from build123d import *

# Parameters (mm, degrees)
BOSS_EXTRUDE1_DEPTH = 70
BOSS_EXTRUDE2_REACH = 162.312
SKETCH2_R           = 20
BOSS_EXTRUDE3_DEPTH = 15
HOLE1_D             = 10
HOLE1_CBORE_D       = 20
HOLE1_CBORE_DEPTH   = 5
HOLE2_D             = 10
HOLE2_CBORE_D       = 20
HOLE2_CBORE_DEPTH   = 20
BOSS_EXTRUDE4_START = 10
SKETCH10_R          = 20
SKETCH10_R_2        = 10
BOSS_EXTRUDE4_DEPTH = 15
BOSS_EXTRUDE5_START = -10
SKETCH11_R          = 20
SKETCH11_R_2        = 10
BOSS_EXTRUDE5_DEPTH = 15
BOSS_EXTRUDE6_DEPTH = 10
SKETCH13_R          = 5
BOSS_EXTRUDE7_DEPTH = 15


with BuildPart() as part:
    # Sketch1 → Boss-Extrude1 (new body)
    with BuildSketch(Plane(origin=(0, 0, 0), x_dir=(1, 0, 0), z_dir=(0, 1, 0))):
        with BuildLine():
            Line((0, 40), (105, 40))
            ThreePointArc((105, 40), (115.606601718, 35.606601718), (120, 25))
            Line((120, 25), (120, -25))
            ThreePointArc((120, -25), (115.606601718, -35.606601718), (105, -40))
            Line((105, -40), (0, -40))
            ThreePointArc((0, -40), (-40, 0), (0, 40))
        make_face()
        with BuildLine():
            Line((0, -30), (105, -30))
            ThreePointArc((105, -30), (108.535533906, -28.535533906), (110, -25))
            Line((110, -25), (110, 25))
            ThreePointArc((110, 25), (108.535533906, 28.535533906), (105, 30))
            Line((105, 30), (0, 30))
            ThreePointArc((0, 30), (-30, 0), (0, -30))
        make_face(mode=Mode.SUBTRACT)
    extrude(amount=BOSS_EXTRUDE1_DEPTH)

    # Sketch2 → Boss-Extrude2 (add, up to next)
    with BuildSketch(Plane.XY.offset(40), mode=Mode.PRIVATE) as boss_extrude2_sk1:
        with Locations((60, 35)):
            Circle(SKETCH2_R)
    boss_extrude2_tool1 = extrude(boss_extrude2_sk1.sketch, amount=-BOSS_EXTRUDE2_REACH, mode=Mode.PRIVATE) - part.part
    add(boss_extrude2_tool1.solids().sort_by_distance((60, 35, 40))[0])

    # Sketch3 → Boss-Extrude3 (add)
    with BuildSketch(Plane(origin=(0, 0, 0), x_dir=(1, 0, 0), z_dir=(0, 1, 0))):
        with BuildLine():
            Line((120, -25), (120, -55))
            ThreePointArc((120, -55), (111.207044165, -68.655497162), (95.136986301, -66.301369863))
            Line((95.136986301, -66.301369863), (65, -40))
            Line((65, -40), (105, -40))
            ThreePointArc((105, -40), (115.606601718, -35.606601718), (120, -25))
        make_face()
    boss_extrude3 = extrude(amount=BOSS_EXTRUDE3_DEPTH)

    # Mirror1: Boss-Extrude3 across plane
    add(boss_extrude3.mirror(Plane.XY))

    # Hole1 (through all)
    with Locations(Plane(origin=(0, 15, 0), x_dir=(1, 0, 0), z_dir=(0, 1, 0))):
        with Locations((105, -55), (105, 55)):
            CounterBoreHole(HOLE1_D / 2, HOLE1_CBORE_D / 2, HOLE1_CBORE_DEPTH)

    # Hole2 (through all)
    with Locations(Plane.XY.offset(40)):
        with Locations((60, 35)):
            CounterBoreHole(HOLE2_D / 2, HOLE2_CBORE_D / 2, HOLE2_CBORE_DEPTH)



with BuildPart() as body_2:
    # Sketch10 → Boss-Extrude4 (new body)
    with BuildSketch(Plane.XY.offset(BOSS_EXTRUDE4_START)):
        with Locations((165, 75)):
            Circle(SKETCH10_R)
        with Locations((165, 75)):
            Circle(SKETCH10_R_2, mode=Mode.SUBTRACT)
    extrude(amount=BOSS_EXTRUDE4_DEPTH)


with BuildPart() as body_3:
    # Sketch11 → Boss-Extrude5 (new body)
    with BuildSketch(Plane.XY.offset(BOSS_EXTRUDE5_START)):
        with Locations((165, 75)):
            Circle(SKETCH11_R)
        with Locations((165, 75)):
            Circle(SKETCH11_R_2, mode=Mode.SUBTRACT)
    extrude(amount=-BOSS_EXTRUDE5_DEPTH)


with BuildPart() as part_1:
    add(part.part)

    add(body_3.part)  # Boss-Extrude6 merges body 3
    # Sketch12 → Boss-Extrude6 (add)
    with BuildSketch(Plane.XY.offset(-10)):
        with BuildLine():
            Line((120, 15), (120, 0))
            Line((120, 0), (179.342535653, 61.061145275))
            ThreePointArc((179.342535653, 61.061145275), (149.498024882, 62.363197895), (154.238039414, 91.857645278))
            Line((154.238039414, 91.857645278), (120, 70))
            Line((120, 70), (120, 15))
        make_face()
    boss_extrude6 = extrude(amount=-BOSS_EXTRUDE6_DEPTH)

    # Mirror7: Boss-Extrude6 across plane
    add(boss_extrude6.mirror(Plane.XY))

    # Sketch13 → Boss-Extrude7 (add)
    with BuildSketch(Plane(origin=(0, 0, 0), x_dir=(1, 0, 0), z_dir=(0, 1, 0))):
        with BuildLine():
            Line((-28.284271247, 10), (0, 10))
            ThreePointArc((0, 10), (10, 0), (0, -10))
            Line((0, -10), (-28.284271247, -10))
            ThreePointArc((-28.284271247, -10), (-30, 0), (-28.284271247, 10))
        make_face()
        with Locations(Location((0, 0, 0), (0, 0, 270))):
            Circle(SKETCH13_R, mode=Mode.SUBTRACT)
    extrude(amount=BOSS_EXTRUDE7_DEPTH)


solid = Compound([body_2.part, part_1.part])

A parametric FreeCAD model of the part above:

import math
import FreeCAD as App
import Part
import Sketcher
Q = App.Units.Quantity

doc = App.newDocument("Part")
body = doc.addObject("PartDesign::Body", "Body")

# Sketch on XZ plane
sketch1 = body.newObject("Sketcher::SketchObject", "Sketch")
sketch1.AttachmentSupport = (doc.getObject("XZ_Plane"), [""])
sketch1.MapMode = "FlatFace"
sketch1.addGeometry(Part.LineSegment(App.Vector(105, -40, 0), App.Vector(0, -40, 0)), False)
sketch1.addGeometry(Part.ArcOfCircle(Part.Circle(App.Vector(0, 0, 0), App.Vector(0, 0, 1), 40), math.radians(90), math.radians(270)), False)
sketch1.addGeometry(Part.LineSegment(App.Vector(0, 40, 0), App.Vector(105, 40, 0)), False)
sketch1.addGeometry(Part.ArcOfCircle(Part.Circle(App.Vector(105, 25, 0), App.Vector(0, 0, 1), 15), math.radians(0), math.radians(90)), False)
sketch1.addGeometry(Part.LineSegment(App.Vector(120, 25, 0), App.Vector(120, -25, 0)), False)
sketch1.addGeometry(Part.ArcOfCircle(Part.Circle(App.Vector(105, -25, 0), App.Vector(0, 0, 1), 15), math.radians(-90), math.radians(0)), False)
sketch1.addGeometry(Part.ArcOfCircle(Part.Circle(App.Vector(0, 0, 0), App.Vector(0, 0, 1), 30), math.radians(90), math.radians(270)), False)
sketch1.addGeometry(Part.LineSegment(App.Vector(0, -30, 0), App.Vector(105, -30, 0)), False)
sketch1.addGeometry(Part.ArcOfCircle(Part.Circle(App.Vector(105, -25, 0), App.Vector(0, 0, 1), 5), math.radians(-90), math.radians(0)), False)
sketch1.addGeometry(Part.LineSegment(App.Vector(110, -25, 0), App.Vector(110, 25, 0)), False)
sketch1.addGeometry(Part.ArcOfCircle(Part.Circle(App.Vector(105, 25, 0), App.Vector(0, 0, 1), 5), math.radians(0), math.radians(90)), False)
sketch1.addGeometry(Part.LineSegment(App.Vector(105, 30, 0), App.Vector(0, 30, 0)), False)
sketch1.addConstraint(Sketcher.Constraint("Tangent", 0, 2, 1, 2))
sketch1.addConstraint(Sketcher.Constraint("Tangent", 1, 1, 2, 1))
sketch1.addConstraint(Sketcher.Constraint("Tangent", 2, 2, 3, 2))
sketch1.addConstraint(Sketcher.Constraint("Tangent", 3, 1, 4, 1))
sketch1.addConstraint(Sketcher.Constraint("Tangent", 4, 2, 5, 2))
sketch1.addConstraint(Sketcher.Constraint("Tangent", 5, 1, 0, 1))
sketch1.addConstraint(Sketcher.Constraint("Tangent", 6, 2, 7, 1))
sketch1.addConstraint(Sketcher.Constraint("Tangent", 7, 2, 8, 1))
sketch1.addConstraint(Sketcher.Constraint("Tangent", 8, 2, 9, 1))
sketch1.addConstraint(Sketcher.Constraint("Tangent", 9, 2, 10, 1))
sketch1.addConstraint(Sketcher.Constraint("Tangent", 10, 2, 11, 1))
sketch1.addConstraint(Sketcher.Constraint("Tangent", 11, 2, 6, 1))
sketch1.addConstraint(Sketcher.Constraint("Horizontal", 0))
sketch1.addConstraint(Sketcher.Constraint("Horizontal", 2))
sketch1.addConstraint(Sketcher.Constraint("Vertical", 4))
sketch1.addConstraint(Sketcher.Constraint("Horizontal", 7))
sketch1.addConstraint(Sketcher.Constraint("Vertical", 9))
sketch1.addConstraint(Sketcher.Constraint("Horizontal", 11))
sketch1.addConstraint(Sketcher.Constraint("Coincident", 1, 3, -1, 1))
sketch1.addConstraint(Sketcher.Constraint("Coincident", 6, 3, -1, 1))
sketch1.addConstraint(Sketcher.Constraint("Coincident", 8, 3, 5, 3))
sketch1.addConstraint(Sketcher.Constraint("Equal", 3, 5))
sketch1.addConstraint(Sketcher.Constraint("Equal", 8, 10))
sketch1.addConstraint(Sketcher.Constraint("Radius", 1, Q("40 mm")))
sketch1.addConstraint(Sketcher.Constraint("Radius", 3, Q("15 mm")))
sketch1.addConstraint(Sketcher.Constraint("Radius", 6, Q("30 mm")))
sketch1.addConstraint(Sketcher.Constraint("DistanceX", 0, 2, 0, 1, Q("105 mm")))
pad1 = body.newObject("PartDesign::Pad", "Pad")
pad1.Profile = sketch1
pad1.Length = 70
pad1.Reversed = True

# Sketch on XY plane
sketch2 = body.newObject("Sketcher::SketchObject", "Sketch001")
sketch2.AttachmentSupport = (doc.getObject("XY_Plane"), [""])
sketch2.MapMode = "FlatFace"
sketch2.AttachmentOffset = App.Placement(App.Vector(0, 0, 40), App.Rotation())
sketch2.addGeometry(Part.Circle(App.Vector(60, 35, 0), App.Vector(0, 0, 1), 20), False)
sketch2.addConstraint(Sketcher.Constraint("Diameter", 0, Q("40 mm")))
sketch2.addConstraint(Sketcher.Constraint("DistanceX", -1, 1, 0, 3, Q("60 mm")))
sketch2.addConstraint(Sketcher.Constraint("DistanceY", -1, 1, 0, 3, Q("35 mm")))
pad2 = body.newObject("PartDesign::Pad", "Pad001")
pad2.Profile = sketch2
pad2.Length = 70
pad2.Reversed = True

# Sketch on XZ plane
sketch3 = body.newObject("Sketcher::SketchObject", "Sketch002")
sketch3.AttachmentSupport = (doc.getObject("XZ_Plane"), [""])
sketch3.MapMode = "FlatFace"
sketch3.addGeometry(Part.LineSegment(App.Vector(120, 55, 0), App.Vector(120, 25, 0)), False)
sketch3.addGeometry(Part.ArcOfCircle(Part.Circle(App.Vector(105, 25, 0), App.Vector(0, 0, 1), 15), math.radians(0), math.radians(90)), False)
sketch3.addGeometry(Part.LineSegment(App.Vector(105, 40, 0), App.Vector(65, 40, 0)), False)
sketch3.addGeometry(Part.LineSegment(App.Vector(65, 40, 0), App.Vector(95, 66, 0)), False)
sketch3.addGeometry(Part.ArcOfCircle(Part.Circle(App.Vector(105, 55, 0), App.Vector(0, 0, 1), 15), math.radians(0), math.radians(131)), False)
sketch3.addConstraint(Sketcher.Constraint("Tangent", 0, 2, 1, 1))
sketch3.addConstraint(Sketcher.Constraint("Tangent", 1, 2, 2, 1))
sketch3.addConstraint(Sketcher.Constraint("Coincident", 2, 2, 3, 1))
sketch3.addConstraint(Sketcher.Constraint("Tangent", 3, 2, 4, 2))
sketch3.addConstraint(Sketcher.Constraint("Tangent", 4, 1, 0, 1))
sketch3.addConstraint(Sketcher.Constraint("Vertical", 0))
sketch3.addConstraint(Sketcher.Constraint("Horizontal", 2))
sketch3.addConstraint(Sketcher.Constraint("Equal", 1, 4))
sketch3.addConstraint(Sketcher.Constraint("Radius", 1, Q("15 mm")))
sketch3.addConstraint(Sketcher.Constraint("DistanceX", 2, 2, 2, 1, Q("40 mm")))
sketch3.addConstraint(Sketcher.Constraint("DistanceY", 0, 2, 0, 1, Q("30 mm")))
sketch3.addConstraint(Sketcher.Constraint("DistanceX", -1, 1, 1, 3, Q("105 mm")))
sketch3.addConstraint(Sketcher.Constraint("DistanceY", -1, 1, 1, 3, Q("25 mm")))
pad3 = body.newObject("PartDesign::Pad", "Pad002")
pad3.Profile = sketch3
pad3.Length = 15
pad3.Reversed = True
doc.recompute()

mirrored = body.newObject("PartDesign::Mirrored", "Mirrored")
mirrored.Originals = [pad3]
mirrored.MirrorPlane = (doc.getObject("XY_Plane"), [""])
body.Tip = mirrored

# Sketch on XZ plane
sketch4 = body.newObject("Sketcher::SketchObject", "Sketch003")
sketch4.AttachmentSupport = (doc.getObject("XZ_Plane"), [""])
sketch4.MapMode = "FlatFace"
sketch4.AttachmentOffset = App.Placement(App.Vector(0, 0, -15), App.Rotation())
sketch4.addGeometry(Part.Circle(App.Vector(105, 55, 0), App.Vector(0, 0, 1), 5), False)
sketch4.addGeometry(Part.Circle(App.Vector(105, -55, 0), App.Vector(0, 0, 1), 5), False)
sketch4.addConstraint(Sketcher.Constraint("Equal", 0, 1))
sketch4.addConstraint(Sketcher.Constraint("Symmetric", 0, 3, 1, 3, -1))
sketch4.addConstraint(Sketcher.Constraint("Diameter", 0, Q("10 mm")))
sketch4.addConstraint(Sketcher.Constraint("DistanceX", -1, 1, 0, 3, Q("105 mm")))
sketch4.addConstraint(Sketcher.Constraint("DistanceY", -1, 1, 0, 3, Q("55 mm")))
doc.recompute()
hole = body.newObject("PartDesign::Hole", "Hole")
hole.Profile = sketch4
hole.ThreadType = "None"
hole.Diameter = 10
hole.DepthType = "ThroughAll"
hole.HoleCutType = "Counterbore"
hole.HoleCutDiameter = 20
hole.HoleCutDepth = 5
hole.Reversed = True

# Sketch on XY plane
sketch5 = body.newObject("Sketcher::SketchObject", "Sketch004")
sketch5.AttachmentSupport = (doc.getObject("XY_Plane"), [""])
sketch5.MapMode = "FlatFace"
sketch5.AttachmentOffset = App.Placement(App.Vector(0, 0, 40), App.Rotation())
sketch5.addGeometry(Part.Circle(App.Vector(60, 35, 0), App.Vector(0, 0, 1), 5), False)
sketch5.addConstraint(Sketcher.Constraint("Diameter", 0, Q("10 mm")))
sketch5.addConstraint(Sketcher.Constraint("DistanceX", -1, 1, 0, 3, Q("60 mm")))
sketch5.addConstraint(Sketcher.Constraint("DistanceY", -1, 1, 0, 3, Q("35 mm")))
doc.recompute()
hole2 = body.newObject("PartDesign::Hole", "Hole001")
hole2.Profile = sketch5
hole2.ThreadType = "None"
hole2.Diameter = 10
hole2.DepthType = "ThroughAll"
hole2.HoleCutType = "Counterbore"
hole2.HoleCutDiameter = 20
hole2.HoleCutDepth = 20
body2 = doc.addObject("PartDesign::Body", "Body001")

# Sketch on XY plane
sketch6 = body2.newObject("Sketcher::SketchObject", "Sketch005")
sketch6.AttachmentSupport = (doc.getObject("XY_Plane001"), [""])
sketch6.MapMode = "FlatFace"
sketch6.AttachmentOffset = App.Placement(App.Vector(0, 0, 10), App.Rotation())
sketch6.addGeometry(Part.Circle(App.Vector(165, 75, 0), App.Vector(0, 0, 1), 20), False)
sketch6.addGeometry(Part.Circle(App.Vector(165, 75, 0), App.Vector(0, 0, 1), 10), False)
sketch6.addConstraint(Sketcher.Constraint("Coincident", 1, 3, 0, 3))
sketch6.addConstraint(Sketcher.Constraint("Diameter", 0, Q("40 mm")))
sketch6.addConstraint(Sketcher.Constraint("Diameter", 1, Q("20 mm")))
sketch6.addConstraint(Sketcher.Constraint("DistanceX", -1, 1, 0, 3, Q("165 mm")))
sketch6.addConstraint(Sketcher.Constraint("DistanceY", -1, 1, 0, 3, Q("75 mm")))
pad4 = body2.newObject("PartDesign::Pad", "Pad003")
pad4.Profile = sketch6
pad4.Length = 15
body3 = doc.addObject("PartDesign::Body", "Body002")

# Sketch on XY plane
sketch7 = body3.newObject("Sketcher::SketchObject", "Sketch006")
sketch7.AttachmentSupport = (doc.getObject("XY_Plane002"), [""])
sketch7.MapMode = "FlatFace"
sketch7.AttachmentOffset = App.Placement(App.Vector(0, 0, -10), App.Rotation())
sketch7.addGeometry(Part.Circle(App.Vector(165, 75, 0), App.Vector(0, 0, 1), 20), False)
sketch7.addGeometry(Part.Circle(App.Vector(165, 75, 0), App.Vector(0, 0, 1), 10), False)
sketch7.addConstraint(Sketcher.Constraint("Coincident", 1, 3, 0, 3))
sketch7.addConstraint(Sketcher.Constraint("Diameter", 0, Q("40 mm")))
sketch7.addConstraint(Sketcher.Constraint("Diameter", 1, Q("20 mm")))
sketch7.addConstraint(Sketcher.Constraint("DistanceX", -1, 1, 0, 3, Q("165 mm")))
sketch7.addConstraint(Sketcher.Constraint("DistanceY", -1, 1, 0, 3, Q("75 mm")))
pad5 = body3.newObject("PartDesign::Pad", "Pad004")
pad5.Profile = sketch7
pad5.Length = 15
pad5.Reversed = True
body.AllowCompound = True
doc.recompute()

boolean = body.newObject("PartDesign::Boolean", "Boolean")
boolean.Type = "Fuse"
boolean.addObjects([body3])

# Sketch on XY plane
sketch8 = body.newObject("Sketcher::SketchObject", "Sketch007")
sketch8.AttachmentSupport = (doc.getObject("XY_Plane"), [""])
sketch8.MapMode = "FlatFace"
sketch8.AttachmentOffset = App.Placement(App.Vector(0, 0, -10), App.Rotation())
sketch8.addGeometry(Part.LineSegment(App.Vector(120, 0, 0), App.Vector(179, 61, 0)), False)
sketch8.addGeometry(Part.ArcOfCircle(Part.Circle(App.Vector(165, 75, 0), App.Vector(0, 0, 1), 20), math.radians(123), math.radians(316)), False)
sketch8.addGeometry(Part.LineSegment(App.Vector(154, 92, 0), App.Vector(120, 70, 0)), False)
sketch8.addGeometry(Part.LineSegment(App.Vector(120, 70, 0), App.Vector(120, 0, 0)), False)
sketch8.addConstraint(Sketcher.Constraint("Tangent", 0, 2, 1, 2))
sketch8.addConstraint(Sketcher.Constraint("Tangent", 1, 1, 2, 1))
sketch8.addConstraint(Sketcher.Constraint("Coincident", 2, 2, 3, 1))
sketch8.addConstraint(Sketcher.Constraint("Coincident", 3, 2, 0, 1))
sketch8.addConstraint(Sketcher.Constraint("Vertical", 3))
sketch8.addConstraint(Sketcher.Constraint("PointOnObject", 3, 2, -1))
sketch8.addConstraint(Sketcher.Constraint("Radius", 1, Q("20 mm")))
sketch8.addConstraint(Sketcher.Constraint("DistanceY", 3, 2, 3, 1, Q("70 mm")))
sketch8.addConstraint(Sketcher.Constraint("DistanceX", -1, 1, 1, 3, Q("165 mm")))
sketch8.addConstraint(Sketcher.Constraint("DistanceY", -1, 1, 1, 3, Q("75 mm")))
sketch8.addConstraint(Sketcher.Constraint("DistanceX", -1, 1, 2, 2, Q("120 mm")))
pad6 = body.newObject("PartDesign::Pad", "Pad005")
pad6.Profile = sketch8
pad6.Length = 10
pad6.Reversed = True
doc.recompute()

mirrored2 = body.newObject("PartDesign::Mirrored", "Mirrored001")
mirrored2.Originals = [pad6]
mirrored2.MirrorPlane = (doc.getObject("XY_Plane"), [""])
body.Tip = mirrored2

# Sketch on XZ plane
sketch9 = body.newObject("Sketcher::SketchObject", "Sketch008")
sketch9.AttachmentSupport = (doc.getObject("XZ_Plane"), [""])
sketch9.MapMode = "FlatFace"
sketch9.addGeometry(Part.LineSegment(App.Vector(0, -10, 0), App.Vector(-28, -10, 0)), False)
sketch9.addGeometry(Part.ArcOfCircle(Part.Circle(App.Vector(0, 0, 0), App.Vector(0, 0, 1), 30), math.radians(161), math.radians(199)), False)
sketch9.addGeometry(Part.LineSegment(App.Vector(-28, 10, 0), App.Vector(0, 10, 0)), False)
sketch9.addGeometry(Part.ArcOfCircle(Part.Circle(App.Vector(0, 0, 0), App.Vector(0, 0, 1), 10), math.radians(-90), math.radians(90)), False)
sketch9.addGeometry(Part.Circle(App.Vector(0, 0, 0), App.Vector(0, 0, 1), 5), False)
sketch9.addConstraint(Sketcher.Constraint("Coincident", 0, 2, 1, 2))
sketch9.addConstraint(Sketcher.Constraint("Coincident", 1, 1, 2, 1))
sketch9.addConstraint(Sketcher.Constraint("Tangent", 2, 2, 3, 2))
sketch9.addConstraint(Sketcher.Constraint("Tangent", 3, 1, 0, 1))
sketch9.addConstraint(Sketcher.Constraint("Horizontal", 0))
sketch9.addConstraint(Sketcher.Constraint("Horizontal", 2))
sketch9.addConstraint(Sketcher.Constraint("Coincident", 1, 3, -1, 1))
sketch9.addConstraint(Sketcher.Constraint("Coincident", 3, 3, -1, 1))
sketch9.addConstraint(Sketcher.Constraint("Coincident", 4, 3, -1, 1))
sketch9.addConstraint(Sketcher.Constraint("Diameter", 4, Q("10 mm")))
sketch9.addConstraint(Sketcher.Constraint("Radius", 1, Q("30 mm")))
sketch9.addConstraint(Sketcher.Constraint("Radius", 3, Q("10 mm")))
pad7 = body.newObject("PartDesign::Pad", "Pad006")
pad7.Profile = sketch9
pad7.Length = 15
pad7.Reversed = True

doc.recompute()
